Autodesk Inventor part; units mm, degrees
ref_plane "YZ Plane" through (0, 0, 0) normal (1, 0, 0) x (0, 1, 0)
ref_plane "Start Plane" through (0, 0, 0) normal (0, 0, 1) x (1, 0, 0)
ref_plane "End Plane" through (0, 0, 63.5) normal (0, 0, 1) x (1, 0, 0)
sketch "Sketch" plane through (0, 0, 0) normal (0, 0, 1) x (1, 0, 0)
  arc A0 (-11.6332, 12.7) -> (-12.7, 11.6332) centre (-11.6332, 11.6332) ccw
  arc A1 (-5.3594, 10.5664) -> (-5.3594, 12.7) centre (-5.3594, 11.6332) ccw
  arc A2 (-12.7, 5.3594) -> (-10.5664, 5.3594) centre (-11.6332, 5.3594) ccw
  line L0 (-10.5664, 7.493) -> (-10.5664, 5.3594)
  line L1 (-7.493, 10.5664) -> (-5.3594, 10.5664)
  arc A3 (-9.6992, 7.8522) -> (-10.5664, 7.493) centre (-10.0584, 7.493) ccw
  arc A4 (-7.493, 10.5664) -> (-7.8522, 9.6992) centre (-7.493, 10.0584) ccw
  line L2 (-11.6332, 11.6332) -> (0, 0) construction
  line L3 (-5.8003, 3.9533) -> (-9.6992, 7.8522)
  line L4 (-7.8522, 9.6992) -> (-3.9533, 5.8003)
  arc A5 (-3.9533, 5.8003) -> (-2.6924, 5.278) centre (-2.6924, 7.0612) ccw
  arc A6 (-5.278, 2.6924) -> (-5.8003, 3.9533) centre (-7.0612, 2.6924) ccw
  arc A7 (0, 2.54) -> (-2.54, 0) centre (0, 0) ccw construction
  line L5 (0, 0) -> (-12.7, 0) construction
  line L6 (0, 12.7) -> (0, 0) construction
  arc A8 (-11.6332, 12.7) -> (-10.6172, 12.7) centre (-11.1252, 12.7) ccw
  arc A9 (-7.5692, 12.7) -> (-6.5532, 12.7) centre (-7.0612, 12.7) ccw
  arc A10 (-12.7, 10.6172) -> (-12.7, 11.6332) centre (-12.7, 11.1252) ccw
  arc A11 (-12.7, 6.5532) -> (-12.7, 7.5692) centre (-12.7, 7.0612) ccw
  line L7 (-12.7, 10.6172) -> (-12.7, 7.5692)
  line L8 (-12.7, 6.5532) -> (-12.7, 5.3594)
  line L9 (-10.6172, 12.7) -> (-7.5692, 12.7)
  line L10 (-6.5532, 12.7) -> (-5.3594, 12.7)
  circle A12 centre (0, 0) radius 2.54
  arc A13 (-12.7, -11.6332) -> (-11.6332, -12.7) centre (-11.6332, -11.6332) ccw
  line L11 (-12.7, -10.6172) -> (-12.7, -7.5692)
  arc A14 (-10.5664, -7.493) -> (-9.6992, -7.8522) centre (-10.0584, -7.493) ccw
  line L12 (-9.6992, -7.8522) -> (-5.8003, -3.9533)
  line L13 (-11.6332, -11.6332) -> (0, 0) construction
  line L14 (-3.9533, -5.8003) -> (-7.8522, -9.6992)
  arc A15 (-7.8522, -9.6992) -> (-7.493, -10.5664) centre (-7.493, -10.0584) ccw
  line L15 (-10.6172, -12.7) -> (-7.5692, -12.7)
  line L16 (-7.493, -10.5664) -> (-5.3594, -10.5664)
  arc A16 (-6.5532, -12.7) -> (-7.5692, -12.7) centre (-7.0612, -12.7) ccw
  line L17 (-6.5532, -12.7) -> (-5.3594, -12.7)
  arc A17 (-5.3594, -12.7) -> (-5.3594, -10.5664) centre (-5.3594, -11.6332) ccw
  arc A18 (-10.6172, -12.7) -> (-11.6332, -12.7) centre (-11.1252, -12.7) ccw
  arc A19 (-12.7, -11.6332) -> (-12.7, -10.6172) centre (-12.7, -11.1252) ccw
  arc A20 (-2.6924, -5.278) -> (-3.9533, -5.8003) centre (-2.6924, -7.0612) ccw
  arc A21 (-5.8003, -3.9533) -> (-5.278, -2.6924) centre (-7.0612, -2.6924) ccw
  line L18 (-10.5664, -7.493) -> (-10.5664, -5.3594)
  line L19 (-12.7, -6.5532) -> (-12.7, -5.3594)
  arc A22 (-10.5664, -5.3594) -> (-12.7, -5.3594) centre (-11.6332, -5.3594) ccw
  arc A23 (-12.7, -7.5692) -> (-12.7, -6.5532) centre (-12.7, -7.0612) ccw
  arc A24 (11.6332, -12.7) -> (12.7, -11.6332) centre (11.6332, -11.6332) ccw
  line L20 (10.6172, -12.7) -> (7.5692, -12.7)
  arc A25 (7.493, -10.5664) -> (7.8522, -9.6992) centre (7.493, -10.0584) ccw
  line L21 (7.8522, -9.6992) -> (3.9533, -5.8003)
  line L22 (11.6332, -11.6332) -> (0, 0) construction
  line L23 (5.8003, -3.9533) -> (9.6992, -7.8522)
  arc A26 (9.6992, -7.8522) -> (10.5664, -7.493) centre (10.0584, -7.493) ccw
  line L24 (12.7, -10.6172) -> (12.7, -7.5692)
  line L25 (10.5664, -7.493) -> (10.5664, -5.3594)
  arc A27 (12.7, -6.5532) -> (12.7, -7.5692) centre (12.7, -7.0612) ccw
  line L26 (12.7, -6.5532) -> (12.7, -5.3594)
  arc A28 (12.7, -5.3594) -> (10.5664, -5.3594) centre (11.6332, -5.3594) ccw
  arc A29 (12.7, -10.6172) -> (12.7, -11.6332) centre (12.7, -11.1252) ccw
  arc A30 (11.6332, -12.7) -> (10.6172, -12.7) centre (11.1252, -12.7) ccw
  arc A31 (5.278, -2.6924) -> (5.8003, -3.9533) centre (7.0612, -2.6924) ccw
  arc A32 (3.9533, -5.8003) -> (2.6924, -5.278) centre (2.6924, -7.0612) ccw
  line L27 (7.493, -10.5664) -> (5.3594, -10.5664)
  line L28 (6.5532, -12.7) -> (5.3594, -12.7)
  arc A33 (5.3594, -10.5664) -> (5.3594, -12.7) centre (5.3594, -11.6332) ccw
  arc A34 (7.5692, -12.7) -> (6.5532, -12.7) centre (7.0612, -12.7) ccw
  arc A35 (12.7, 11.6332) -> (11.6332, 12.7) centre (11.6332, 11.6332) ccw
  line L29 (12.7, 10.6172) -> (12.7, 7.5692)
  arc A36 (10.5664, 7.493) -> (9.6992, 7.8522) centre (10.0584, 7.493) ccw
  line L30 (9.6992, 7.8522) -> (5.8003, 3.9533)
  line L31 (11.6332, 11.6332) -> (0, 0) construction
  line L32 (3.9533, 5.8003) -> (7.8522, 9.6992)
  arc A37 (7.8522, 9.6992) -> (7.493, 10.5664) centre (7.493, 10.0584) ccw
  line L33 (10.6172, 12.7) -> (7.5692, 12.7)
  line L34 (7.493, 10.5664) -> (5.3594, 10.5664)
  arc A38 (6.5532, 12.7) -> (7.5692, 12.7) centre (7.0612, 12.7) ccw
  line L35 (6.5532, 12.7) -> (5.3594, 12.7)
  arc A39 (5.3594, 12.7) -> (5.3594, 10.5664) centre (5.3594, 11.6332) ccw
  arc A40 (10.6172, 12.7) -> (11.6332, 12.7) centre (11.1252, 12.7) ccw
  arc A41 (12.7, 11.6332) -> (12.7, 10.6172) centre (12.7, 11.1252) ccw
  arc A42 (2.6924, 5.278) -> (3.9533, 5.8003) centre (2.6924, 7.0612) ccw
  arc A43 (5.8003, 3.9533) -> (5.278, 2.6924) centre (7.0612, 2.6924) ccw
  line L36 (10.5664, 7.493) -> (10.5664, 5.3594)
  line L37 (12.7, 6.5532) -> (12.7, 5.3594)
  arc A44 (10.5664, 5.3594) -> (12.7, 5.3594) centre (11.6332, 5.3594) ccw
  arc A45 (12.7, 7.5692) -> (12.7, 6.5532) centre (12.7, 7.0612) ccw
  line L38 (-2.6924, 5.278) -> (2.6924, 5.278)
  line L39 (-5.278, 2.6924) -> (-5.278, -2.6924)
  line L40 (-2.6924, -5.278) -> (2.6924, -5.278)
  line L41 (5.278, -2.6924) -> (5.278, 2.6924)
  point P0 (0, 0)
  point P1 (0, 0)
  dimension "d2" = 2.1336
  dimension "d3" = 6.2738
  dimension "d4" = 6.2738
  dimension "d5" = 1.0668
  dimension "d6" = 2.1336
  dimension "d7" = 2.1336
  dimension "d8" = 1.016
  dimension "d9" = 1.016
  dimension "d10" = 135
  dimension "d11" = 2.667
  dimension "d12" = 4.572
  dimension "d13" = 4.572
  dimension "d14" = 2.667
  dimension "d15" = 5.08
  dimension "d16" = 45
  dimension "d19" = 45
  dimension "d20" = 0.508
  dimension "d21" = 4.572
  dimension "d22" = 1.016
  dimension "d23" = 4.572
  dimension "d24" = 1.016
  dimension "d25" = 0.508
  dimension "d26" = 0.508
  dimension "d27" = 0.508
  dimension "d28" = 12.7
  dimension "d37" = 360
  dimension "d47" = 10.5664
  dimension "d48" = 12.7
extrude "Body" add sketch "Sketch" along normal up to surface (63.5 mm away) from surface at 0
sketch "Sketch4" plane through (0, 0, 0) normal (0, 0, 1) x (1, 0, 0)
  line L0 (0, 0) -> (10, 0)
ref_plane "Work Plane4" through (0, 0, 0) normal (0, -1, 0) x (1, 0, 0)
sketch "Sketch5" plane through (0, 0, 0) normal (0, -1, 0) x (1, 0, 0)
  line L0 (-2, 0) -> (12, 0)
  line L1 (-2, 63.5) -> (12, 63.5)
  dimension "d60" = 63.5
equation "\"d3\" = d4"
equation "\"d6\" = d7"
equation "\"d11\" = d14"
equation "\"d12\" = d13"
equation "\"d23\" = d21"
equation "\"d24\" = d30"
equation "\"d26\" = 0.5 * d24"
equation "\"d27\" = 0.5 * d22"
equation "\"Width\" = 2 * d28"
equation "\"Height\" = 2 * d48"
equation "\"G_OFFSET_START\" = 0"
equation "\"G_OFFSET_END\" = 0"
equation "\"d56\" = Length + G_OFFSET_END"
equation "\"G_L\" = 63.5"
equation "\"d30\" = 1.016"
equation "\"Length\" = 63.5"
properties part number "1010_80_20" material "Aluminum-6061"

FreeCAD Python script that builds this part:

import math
import FreeCAD as App
import Part
import Sketcher

V = App.Vector
Q = App.Units.Quantity

doc = App.newDocument("Part")
params = doc.addObject("Spreadsheet::Sheet", "Params")
for row, (alias, value) in enumerate([
    ("sketch1_diameter", "0.2 in"),
    ("sketch1_radius", "0.02 in"),
    ("sketch1_radius2", "0.042 in"),
    ("sketch1_width", "0.084 in"),
    ("sketch1_width2", "0.12 in"),
    ("pad1_length", "2.5 in"),
], start=1):
    params.set(f"A{row}", alias)
    params.set(f"B{row}", "=" + value)
    params.setAlias(f"B{row}", alias)

body = doc.addObject("PartDesign::Body", "Body")

sketch1 = body.newObject("Sketcher::SketchObject", "Sketch")
sketch1.AttachmentSupport = (doc.getObject("XY_Plane"), [""])
sketch1.MapMode = "FlatFace"
sketch1.addGeometry(Part.ArcOfCircle(Part.Circle(V(-11.1252, 12.7, 0), V(0, 0, 1), 0.508), math.radians(180), math.radians(360)), False)
sketch1.addGeometry(Part.ArcOfCircle(Part.Circle(V(-11.6332, 11.6332, 0), V(0, 0, 1), 1.0668), math.radians(90), math.radians(180)), False)
sketch1.addGeometry(Part.ArcOfCircle(Part.Circle(V(-12.7, 11.1252, 0), V(0, 0, 1), 0.508), math.radians(-90), math.radians(90)), False)
sketch1.addGeometry(Part.LineSegment(V(-12.7, 10.6172, 0), V(-12.7, 7.5692, 0)), False)
sketch1.addGeometry(Part.ArcOfCircle(Part.Circle(V(-12.7, 7.0612, 0), V(0, 0, 1), 0.508), math.radians(-90), math.radians(90)), False)
sketch1.addGeometry(Part.LineSegment(V(-12.7, 6.5532, 0), V(-12.7, 5.3594, 0)), False)
sketch1.addGeometry(Part.ArcOfCircle(Part.Circle(V(-11.6332, 5.3594, 0), V(0, 0, 1), 1.0668), math.radians(180), math.radians(360)), False)
sketch1.addGeometry(Part.LineSegment(V(-10.5664, 5.3594, 0), V(-10.5664, 7.493, 0)), False)
sketch1.addGeometry(Part.ArcOfCircle(Part.Circle(V(-10.0584, 7.493, 0), V(0, 0, 1), 0.507986), math.radians(45), math.radians(180)), False)
sketch1.addGeometry(Part.LineSegment(V(-9.6992, 7.8522, 0), V(-5.8003, 3.9533, 0)), False)
sketch1.addGeometry(Part.ArcOfCircle(Part.Circle(V(-7.0612, 2.6924, 0), V(0, 0, 1), 1.7832), math.radians(0), math.radians(45)), False)
sketch1.addGeometry(Part.LineSegment(V(-5.278, 2.6924, 0), V(-5.278, -2.6924, 0)), False)
sketch1.addGeometry(Part.ArcOfCircle(Part.Circle(V(-7.0612, -2.6924, 0), V(0, 0, 1), 1.783182), math.radians(-45), math.radians(0)), False)
sketch1.addGeometry(Part.LineSegment(V(-5.8003, -3.9533, 0), V(-9.6992, -7.8522, 0)), False)
sketch1.addGeometry(Part.ArcOfCircle(Part.Circle(V(-10.0584, -7.493, 0), V(0, 0, 1), 0.508), math.radians(180), math.radians(315)), False)
sketch1.addGeometry(Part.LineSegment(V(-10.5664, -7.493, 0), V(-10.5664, -5.3594, 0)), False)
sketch1.addGeometry(Part.ArcOfCircle(Part.Circle(V(-11.6332, -5.3594, 0), V(0, 0, 1), 1.0668), math.radians(0), math.radians(180)), False)
sketch1.addGeometry(Part.LineSegment(V(-12.7, -5.3594, 0), V(-12.7, -6.5532, 0)), False)
sketch1.addGeometry(Part.ArcOfCircle(Part.Circle(V(-12.7, -7.0612, 0), V(0, 0, 1), 0.508), math.radians(-90), math.radians(90)), False)
sketch1.addGeometry(Part.LineSegment(V(-12.7, -7.5692, 0), V(-12.7, -10.6172, 0)), False)
sketch1.addGeometry(Part.ArcOfCircle(Part.Circle(V(-12.7, -11.1252, 0), V(0, 0, 1), 0.508), math.radians(-90), math.radians(90)), False)
sketch1.addGeometry(Part.ArcOfCircle(Part.Circle(V(-11.6332, -11.6332, 0), V(0, 0, 1), 1.0668), math.radians(180), math.radians(270)), False)
sketch1.addGeometry(Part.ArcOfCircle(Part.Circle(V(-11.1252, -12.7, 0), V(0, 0, 1), 0.508), math.radians(0), math.radians(180)), False)
sketch1.addGeometry(Part.LineSegment(V(-10.6172, -12.7, 0), V(-7.5692, -12.7, 0)), False)
sketch1.addGeometry(Part.ArcOfCircle(Part.Circle(V(-7.0612, -12.7, 0), V(0, 0, 1), 0.508), math.radians(0), math.radians(180)), False)
sketch1.addGeometry(Part.LineSegment(V(-6.5532, -12.7, 0), V(-5.3594, -12.7, 0)), False)
sketch1.addGeometry(Part.ArcOfCircle(Part.Circle(V(-5.3594, -11.6332, 0), V(0, 0, 1), 1.0668), math.radians(-90), math.radians(90)), False)
sketch1.addGeometry(Part.LineSegment(V(-5.3594, -10.5664, 0), V(-7.493, -10.5664, 0)), False)
sketch1.addGeometry(Part.ArcOfCircle(Part.Circle(V(-7.493, -10.0584, 0), V(0, 0, 1), 0.507986), math.radians(135), math.radians(270)), False)
sketch1.addGeometry(Part.LineSegment(V(-7.8522, -9.6992, 0), V(-3.9533, -5.8003, 0)), False)
sketch1.addGeometry(Part.ArcOfCircle(Part.Circle(V(-2.6924, -7.0612, 0), V(0, 0, 1), 1.7832), math.radians(90), math.radians(135)), False)
sketch1.addGeometry(Part.LineSegment(V(-2.6924, -5.278, 0), V(2.6924, -5.278, 0)), False)
sketch1.addGeometry(Part.ArcOfCircle(Part.Circle(V(2.6924, -7.0612, 0), V(0, 0, 1), 1.783182), math.radians(45), math.radians(90)), False)
sketch1.addGeometry(Part.LineSegment(V(3.9533, -5.8003, 0), V(7.8522, -9.6992, 0)), False)
sketch1.addGeometry(Part.ArcOfCircle(Part.Circle(V(7.493, -10.0584, 0), V(0, 0, 1), 0.508), math.radians(-90), math.radians(45)), False)
sketch1.addGeometry(Part.LineSegment(V(7.493, -10.5664, 0), V(5.3594, -10.5664, 0)), False)
sketch1.addGeometry(Part.ArcOfCircle(Part.Circle(V(5.3594, -11.6332, 0), V(0, 0, 1), 1.0668), math.radians(90), math.radians(270)), False)
sketch1.addGeometry(Part.LineSegment(V(5.3594, -12.7, 0), V(6.5532, -12.7, 0)), False)
sketch1.addGeometry(Part.ArcOfCircle(Part.Circle(V(7.0612, -12.7, 0), V(0, 0, 1), 0.508), math.radians(0), math.radians(180)), False)
sketch1.addGeometry(Part.LineSegment(V(7.5692, -12.7, 0), V(10.6172, -12.7, 0)), False)
sketch1.addGeometry(Part.ArcOfCircle(Part.Circle(V(11.1252, -12.7, 0), V(0, 0, 1), 0.508), math.radians(0), math.radians(180)), False)
sketch1.addGeometry(Part.ArcOfCircle(Part.Circle(V(11.6332, -11.6332, 0), V(0, 0, 1), 1.0668), math.radians(-90), math.radians(0)), False)
sketch1.addGeometry(Part.ArcOfCircle(Part.Circle(V(12.7, -11.1252, 0), V(0, 0, 1), 0.508), math.radians(90), math.radians(270)), False)
sketch1.addGeometry(Part.LineSegment(V(12.7, -10.6172, 0), V(12.7, -7.5692, 0)), False)
sketch1.addGeometry(Part.ArcOfCircle(Part.Circle(V(12.7, -7.0612, 0), V(0, 0, 1), 0.508), math.radians(90), math.radians(270)), False)
sketch1.addGeometry(Part.LineSegment(V(12.7, -6.5532, 0), V(12.7, -5.3594, 0)), False)
sketch1.addGeometry(Part.ArcOfCircle(Part.Circle(V(11.6332, -5.3594, 0), V(0, 0, 1), 1.0668), math.radians(0), math.radians(180)), False)
sketch1.addGeometry(Part.LineSegment(V(10.5664, -5.3594, 0), V(10.5664, -7.493, 0)), False)
sketch1.addGeometry(Part.ArcOfCircle(Part.Circle(V(10.0584, -7.493, 0), V(0, 0, 1), 0.507986), math.radians(-135), math.radians(0)), False)
sketch1.addGeometry(Part.LineSegment(V(9.6992, -7.8522, 0), V(5.8003, -3.9533, 0)), False)
sketch1.addGeometry(Part.ArcOfCircle(Part.Circle(V(7.0612, -2.6924, 0), V(0, 0, 1), 1.7832), math.radians(180), math.radians(225)), False)
sketch1.addGeometry(Part.LineSegment(V(5.278, -2.6924, 0), V(5.278, 2.6924, 0)), False)
sketch1.addGeometry(Part.ArcOfCircle(Part.Circle(V(7.0612, 2.6924, 0), V(0, 0, 1), 1.783182), math.radians(135), math.radians(180)), False)
sketch1.addGeometry(Part.LineSegment(V(5.8003, 3.9533, 0), V(9.6992, 7.8522, 0)), False)
sketch1.addGeometry(Part.ArcOfCircle(Part.Circle(V(10.0584, 7.493, 0), V(0, 0, 1), 0.508), math.radians(0), math.radians(135)), False)
sketch1.addGeometry(Part.LineSegment(V(10.5664, 7.493, 0), V(10.5664, 5.3594, 0)), False)
sketch1.addGeometry(Part.ArcOfCircle(Part.Circle(V(11.6332, 5.3594, 0), V(0, 0, 1), 1.0668), math.radians(180), math.radians(360)), False)
sketch1.addGeometry(Part.LineSegment(V(12.7, 5.3594, 0), V(12.7, 6.5532, 0)), False)
sketch1.addGeometry(Part.ArcOfCircle(Part.Circle(V(12.7, 7.0612, 0), V(0, 0, 1), 0.508), math.radians(90), math.radians(270)), False)
sketch1.addGeometry(Part.LineSegment(V(12.7, 7.5692, 0), V(12.7, 10.6172, 0)), False)
sketch1.addGeometry(Part.ArcOfCircle(Part.Circle(V(12.7, 11.1252, 0), V(0, 0, 1), 0.508), math.radians(90), math.radians(270)), False)
sketch1.addGeometry(Part.ArcOfCircle(Part.Circle(V(11.6332, 11.6332, 0), V(0, 0, 1), 1.0668), math.radians(0), math.radians(90)), False)
sketch1.addGeometry(Part.ArcOfCircle(Part.Circle(V(11.1252, 12.7, 0), V(0, 0, 1), 0.508), math.radians(180), math.radians(360)), False)
sketch1.addGeometry(Part.LineSegment(V(10.6172, 12.7, 0), V(7.5692, 12.7, 0)), False)
sketch1.addGeometry(Part.ArcOfCircle(Part.Circle(V(7.0612, 12.7, 0), V(0, 0, 1), 0.508), math.radians(180), math.radians(360)), False)
sketch1.addGeometry(Part.LineSegment(V(6.5532, 12.7, 0), V(5.3594, 12.7, 0)), False)
sketch1.addGeometry(Part.ArcOfCircle(Part.Circle(V(5.3594, 11.6332, 0), V(0, 0, 1), 1.0668), math.radians(90), math.radians(270)), False)
sketch1.addGeometry(Part.LineSegment(V(5.3594, 10.5664, 0), V(7.493, 10.5664, 0)), False)
sketch1.addGeometry(Part.ArcOfCircle(Part.Circle(V(7.493, 10.0584, 0), V(0, 0, 1), 0.507986), math.radians(-45), math.radians(90)), False)
sketch1.addGeometry(Part.LineSegment(V(7.8522, 9.6992, 0), V(3.9533, 5.8003, 0)), False)
sketch1.addGeometry(Part.ArcOfCircle(Part.Circle(V(2.6924, 7.0612, 0), V(0, 0, 1), 1.7832), math.radians(-90), math.radians(-45)), False)
sketch1.addGeometry(Part.LineSegment(V(2.6924, 5.278, 0), V(-2.6924, 5.278, 0)), False)
sketch1.addGeometry(Part.ArcOfCircle(Part.Circle(V(-2.6924, 7.0612, 0), V(0, 0, 1), 1.783182), math.radians(-135), math.radians(-90)), False)
sketch1.addGeometry(Part.LineSegment(V(-3.9533, 5.8003, 0), V(-7.8522, 9.6992, 0)), False)
sketch1.addGeometry(Part.ArcOfCircle(Part.Circle(V(-7.493, 10.0584, 0), V(0, 0, 1), 0.508), math.radians(90), math.radians(225)), False)
sketch1.addGeometry(Part.LineSegment(V(-7.493, 10.5664, 0), V(-5.3594, 10.5664, 0)), False)
sketch1.addGeometry(Part.ArcOfCircle(Part.Circle(V(-5.3594, 11.6332, 0), V(0, 0, 1), 1.0668), math.radians(-90), math.radians(90)), False)
sketch1.addGeometry(Part.LineSegment(V(-5.3594, 12.7, 0), V(-6.5532, 12.7, 0)), False)
sketch1.addGeometry(Part.ArcOfCircle(Part.Circle(V(-7.0612, 12.7, 0), V(0, 0, 1), 0.508), math.radians(180), math.radians(360)), False)
sketch1.addGeometry(Part.LineSegment(V(-7.5692, 12.7, 0), V(-10.6172, 12.7, 0)), False)
sketch1.addGeometry(Part.Circle(V(0, 0, 0), V(0, 0, 1), 2.54), False)
sketch1.addConstraint(Sketcher.Constraint("Coincident", 0, 1, 1, 1))
sketch1.addConstraint(Sketcher.Constraint("Coincident", 1, 2, 2, 2))
sketch1.addConstraint(Sketcher.Constraint("Coincident", 2, 1, 3, 1))
sketch1.addConstraint(Sketcher.Constraint("Coincident", 3, 2, 4, 2))
sketch1.addConstraint(Sketcher.Constraint("Coincident", 4, 1, 5, 1))
sketch1.addConstraint(Sketcher.Constraint("Tangent", 5, 2, 6, 1))
sketch1.addConstraint(Sketcher.Constraint("Tangent", 6, 2, 7, 1))
sketch1.addConstraint(Sketcher.Constraint("Tangent", 7, 2, 8, 2))
sketch1.addConstraint(Sketcher.Constraint("Tangent", 8, 1, 9, 1))
sketch1.addConstraint(Sketcher.Constraint("Tangent", 9, 2, 10, 2))
sketch1.addConstraint(Sketcher.Constraint("Tangent", 10, 1, 11, 1))
sketch1.addConstraint(Sketcher.Constraint("Tangent", 11, 2, 12, 2))
sketch1.addConstraint(Sketcher.Constraint("Tangent", 12, 1, 13, 1))
sketch1.addConstraint(Sketcher.Constraint("Tangent", 13, 2, 14, 2))
sketch1.addConstraint(Sketcher.Constraint("Tangent", 14, 1, 15, 1))
sketch1.addConstraint(Sketcher.Constraint("Tangent", 15, 2, 16, 1))
sketch1.addConstraint(Sketcher.Constraint("Tangent", 16, 2, 17, 1))
sketch1.addConstraint(Sketcher.Constraint("Coincident", 17, 2, 18, 2))
sketch1.addConstraint(Sketcher.Constraint("Coincident", 18, 1, 19, 1))
sketch1.addConstraint(Sketcher.Constraint("Coincident", 19, 2, 20, 2))
sketch1.addConstraint(Sketcher.Constraint("Coincident", 20, 1, 21, 1))
sketch1.addConstraint(Sketcher.Constraint("Coincident", 21, 2, 22, 2))
sketch1.addConstraint(Sketcher.Constraint("Coincident", 22, 1, 23, 1))
sketch1.addConstraint(Sketcher.Constraint("Coincident", 23, 2, 24, 2))
sketch1.addConstraint(Sketcher.Constraint("Coincident", 24, 1, 25, 1))
sketch1.addConstraint(Sketcher.Constraint("Tangent", 25, 2, 26, 1))
sketch1.addConstraint(Sketcher.Constraint("Tangent", 26, 2, 27, 1))
sketch1.addConstraint(Sketcher.Constraint("Tangent", 27, 2, 28, 2))
sketch1.addConstraint(Sketcher.Constraint("Tangent", 28, 1, 29, 1))
sketch1.addConstraint(Sketcher.Constraint("Tangent", 29, 2, 30, 2))
sketch1.addConstraint(Sketcher.Constraint("Tangent", 30, 1, 31, 1))
sketch1.addConstraint(Sketcher.Constraint("Tangent", 31, 2, 32, 2))
sketch1.addConstraint(Sketcher.Constraint("Tangent", 32, 1, 33, 1))
sketch1.addConstraint(Sketcher.Constraint("Tangent", 33, 2, 34, 2))
sketch1.addConstraint(Sketcher.Constraint("Tangent", 34, 1, 35, 1))
sketch1.addConstraint(Sketcher.Constraint("Tangent", 35, 2, 36, 1))
sketch1.addConstraint(Sketcher.Constraint("Tangent", 36, 2, 37, 1))
sketch1.addConstraint(Sketcher.Constraint("Coincident", 37, 2, 38, 2))
sketch1.addConstraint(Sketcher.Constraint("Coincident", 38, 1, 39, 1))
sketch1.addConstraint(Sketcher.Constraint("Coincident", 39, 2, 40, 2))
sketch1.addConstraint(Sketcher.Constraint("Coincident", 40, 1, 41, 1))
sketch1.addConstraint(Sketcher.Constraint("Coincident", 41, 2, 42, 2))
sketch1.addConstraint(Sketcher.Constraint("Coincident", 42, 1, 43, 1))
sketch1.addConstraint(Sketcher.Constraint("Coincident", 43, 2, 44, 2))
sketch1.addConstraint(Sketcher.Constraint("Coincident", 44, 1, 45, 1))
sketch1.addConstraint(Sketcher.Constraint("Tangent", 45, 2, 46, 1))
sketch1.addConstraint(Sketcher.Constraint("Tangent", 46, 2, 47, 1))
sketch1.addConstraint(Sketcher.Constraint("Tangent", 47, 2, 48, 2))
sketch1.addConstraint(Sketcher.Constraint("Tangent", 48, 1, 49, 1))
sketch1.addConstraint(Sketcher.Constraint("Tangent", 49, 2, 50, 2))
sketch1.addConstraint(Sketcher.Constraint("Tangent", 50, 1, 51, 1))
sketch1.addConstraint(Sketcher.Constraint("Tangent", 51, 2, 52, 2))
sketch1.addConstraint(Sketcher.Constraint("Tangent", 52, 1, 53, 1))
sketch1.addConstraint(Sketcher.Constraint("Tangent", 53, 2, 54, 2))
sketch1.addConstraint(Sketcher.Constraint("Tangent", 54, 1, 55, 1))
sketch1.addConstraint(Sketcher.Constraint("Tangent", 55, 2, 56, 1))
sketch1.addConstraint(Sketcher.Constraint("Tangent", 56, 2, 57, 1))
sketch1.addConstraint(Sketcher.Constraint("Coincident", 57, 2, 58, 2))
sketch1.addConstraint(Sketcher.Constraint("Coincident", 58, 1, 59, 1))
sketch1.addConstraint(Sketcher.Constraint("Coincident", 59, 2, 60, 2))
sketch1.addConstraint(Sketcher.Constraint("Coincident", 60, 1, 61, 1))
sketch1.addConstraint(Sketcher.Constraint("Coincident", 61, 2, 62, 2))
sketch1.addConstraint(Sketcher.Constraint("Coincident", 62, 1, 63, 1))
sketch1.addConstraint(Sketcher.Constraint("Coincident", 63, 2, 64, 2))
sketch1.addConstraint(Sketcher.Constraint("Coincident", 64, 1, 65, 1))
sketch1.addConstraint(Sketcher.Constraint("Tangent", 65, 2, 66, 1))
sketch1.addConstraint(Sketcher.Constraint("Tangent", 66, 2, 67, 1))
sketch1.addConstraint(Sketcher.Constraint("Tangent", 67, 2, 68, 2))
sketch1.addConstraint(Sketcher.Constraint("Tangent", 68, 1, 69, 1))
sketch1.addConstraint(Sketcher.Constraint("Tangent", 69, 2, 70, 2))
sketch1.addConstraint(Sketcher.Constraint("Tangent", 70, 1, 71, 1))
sketch1.addConstraint(Sketcher.Constraint("Tangent", 71, 2, 72, 2))
sketch1.addConstraint(Sketcher.Constraint("Tangent", 72, 1, 73, 1))
sketch1.addConstraint(Sketcher.Constraint("Tangent", 73, 2, 74, 2))
sketch1.addConstraint(Sketcher.Constraint("Tangent", 74, 1, 75, 1))
sketch1.addConstraint(Sketcher.Constraint("Tangent", 75, 2, 76, 1))
sketch1.addConstraint(Sketcher.Constraint("Tangent", 76, 2, 77, 1))
sketch1.addConstraint(Sketcher.Constraint("Coincident", 77, 2, 78, 2))
sketch1.addConstraint(Sketcher.Constraint("Coincident", 78, 1, 79, 1))
sketch1.addConstraint(Sketcher.Constraint("Coincident", 79, 2, 0, 2))
sketch1.addConstraint(Sketcher.Constraint("Vertical", 3))
sketch1.addConstraint(Sketcher.Constraint("Vertical", 5))
sketch1.addConstraint(Sketcher.Constraint("Vertical", 7))
sketch1.addConstraint(Sketcher.Constraint("Vertical", 11))
sketch1.addConstraint(Sketcher.Constraint("Vertical", 15))
sketch1.addConstraint(Sketcher.Constraint("Vertical", 17))
sketch1.addConstraint(Sketcher.Constraint("Vertical", 19))
sketch1.addConstraint(Sketcher.Constraint("Horizontal", 23))
sketch1.addConstraint(Sketcher.Constraint("Horizontal", 25))
sketch1.addConstraint(Sketcher.Constraint("Horizontal", 27))
sketch1.addConstraint(Sketcher.Constraint("Horizontal", 31))
sketch1.addConstraint(Sketcher.Constraint("Horizontal", 35))
sketch1.addConstraint(Sketcher.Constraint("Horizontal", 37))
sketch1.addConstraint(Sketcher.Constraint("Horizontal", 39))
sketch1.addConstraint(Sketcher.Constraint("Vertical", 43))
sketch1.addConstraint(Sketcher.Constraint("Vertical", 45))
sketch1.addConstraint(Sketcher.Constraint("Vertical", 47))
sketch1.addConstraint(Sketcher.Constraint("Vertical", 51))
sketch1.addConstraint(Sketcher.Constraint("Vertical", 55))
sketch1.addConstraint(Sketcher.Constraint("Vertical", 57))
sketch1.addConstraint(Sketcher.Constraint("Vertical", 59))
sketch1.addConstraint(Sketcher.Constraint("Horizontal", 63))
sketch1.addConstraint(Sketcher.Constraint("Horizontal", 65))
sketch1.addConstraint(Sketcher.Constraint("Horizontal", 67))
sketch1.addConstraint(Sketcher.Constraint("Horizontal", 71))
sketch1.addConstraint(Sketcher.Constraint("Horizontal", 75))
sketch1.addConstraint(Sketcher.Constraint("Horizontal", 77))
sketch1.addConstraint(Sketcher.Constraint("Horizontal", 79))
sketch1.addConstraint(Sketcher.Constraint("Coincident", 80, 3, -1, 1))
sketch1.addConstraint(Sketcher.Constraint("Equal", 0, 2))
sketch1.addConstraint(Sketcher.Constraint("Equal", 2, 4))
sketch1.addConstraint(Sketcher.Constraint("Equal", 1, 6))
sketch1.addConstraint(Sketcher.Constraint("Equal", 4, 8))
sketch1.addConstraint(Sketcher.Constraint("Equal", 10, 12))
sketch1.addConstraint(Sketcher.Constraint("Equal", 8, 14))
sketch1.addConstraint(Sketcher.Constraint("Equal", 6, 16))
sketch1.addConstraint(Sketcher.Constraint("Equal", 14, 18))
sketch1.addConstraint(Sketcher.Constraint("Equal", 18, 20))
sketch1.addConstraint(Sketcher.Constraint("Equal", 16, 21))
sketch1.addConstraint(Sketcher.Constraint("Equal", 20, 22))
sketch1.addConstraint(Sketcher.Constraint("Equal", 22, 24))
sketch1.addConstraint(Sketcher.Constraint("Equal", 21, 26))
sketch1.addConstraint(Sketcher.Constraint("Equal", 24, 28))
sketch1.addConstraint(Sketcher.Constraint("Equal", 12, 30))
sketch1.addConstraint(Sketcher.Constraint("Equal", 30, 32))
sketch1.addConstraint(Sketcher.Constraint("Equal", 28, 34))
sketch1.addConstraint(Sketcher.Constraint("Equal", 26, 36))
sketch1.addConstraint(Sketcher.Constraint("Equal", 34, 38))
sketch1.addConstraint(Sketcher.Constraint("Equal", 38, 40))
sketch1.addConstraint(Sketcher.Constraint("Equal", 36, 41))
sketch1.addConstraint(Sketcher.Constraint("Equal", 40, 42))
sketch1.addConstraint(Sketcher.Constraint("Equal", 42, 44))
sketch1.addConstraint(Sketcher.Constraint("Equal", 41, 46))
sketch1.addConstraint(Sketcher.Constraint("Equal", 44, 48))
sketch1.addConstraint(Sketcher.Constraint("Equal", 32, 50))
sketch1.addConstraint(Sketcher.Constraint("Equal", 50, 52))
sketch1.addConstraint(Sketcher.Constraint("Equal", 48, 54))
sketch1.addConstraint(Sketcher.Constraint("Equal", 46, 56))
sketch1.addConstraint(Sketcher.Constraint("Equal", 54, 58))
sketch1.addConstraint(Sketcher.Constraint("Equal", 58, 60))
sketch1.addConstraint(Sketcher.Constraint("Equal", 56, 61))
sketch1.addConstraint(Sketcher.Constraint("Equal", 60, 62))
sketch1.addConstraint(Sketcher.Constraint("Equal", 62, 64))
sketch1.addConstraint(Sketcher.Constraint("Equal", 61, 66))
sketch1.addConstraint(Sketcher.Constraint("Equal", 64, 68))
sketch1.addConstraint(Sketcher.Constraint("Equal", 52, 70))
sketch1.addConstraint(Sketcher.Constraint("Equal", 70, 72))
sketch1.addConstraint(Sketcher.Constraint("Equal", 68, 74))
sketch1.addConstraint(Sketcher.Constraint("Equal", 66, 76))
sketch1.addConstraint(Sketcher.Constraint("Equal", 74, 78))
sketch1.addConstraint(Sketcher.Constraint("Symmetric", 0, 3, 40, 3, -1, 1))
sketch1.addConstraint(Sketcher.Constraint("Symmetric", 1, 3, 41, 3, -1, 1))
sketch1.addConstraint(Sketcher.Constraint("Symmetric", 2, 3, 42, 3, -1, 1))
sketch1.addConstraint(Sketcher.Constraint("Symmetric", 4, 3, 44, 3, -1, 1))
sketch1.addConstraint(Sketcher.Constraint("Symmetric", 6, 3, 46, 3, -1, 1))
sketch1.addConstraint(Sketcher.Constraint("Symmetric", 10, 3, 50, 3, -1, 1))
sketch1.addConstraint(Sketcher.Constraint("Symmetric", 14, 3, 54, 3, -1, 1))
sketch1.addConstraint(Sketcher.Constraint("Symmetric", 18, 3, 58, 3, -1, 1))
sketch1.addConstraint(Sketcher.Constraint("Symmetric", 20, 3, 60, 3, -1, 1))
sketch1.addConstraint(Sketcher.Constraint("Symmetric", 21, 3, 61, 3, -1, 1))
sketch1.addConstraint(Sketcher.Constraint("Symmetric", 22, 3, 62, 3, -1, 1))
sketch1.addConstraint(Sketcher.Constraint("Symmetric", 24, 3, 64, 3, -1, 1))
sketch1.addConstraint(Sketcher.Constraint("Symmetric", 26, 3, 66, 3, -1, 1))
sketch1.addConstraint(Sketcher.Constraint("Symmetric", 30, 3, 70, 3, -1, 1))
sketch1.addConstraint(Sketcher.Constraint("Symmetric", 34, 3, 74, 3, -1, 1))
sketch1.addConstraint(Sketcher.Constraint("Symmetric", 38, 3, 78, 3, -1, 1))
sketch1.addConstraint(Sketcher.Constraint("Symmetric", 28, 3, 34, 3, -2))
sketch1.addConstraint(Sketcher.Constraint("Symmetric", 24, 3, 38, 3, -2))
sketch1.addConstraint(Sketcher.Constraint("Symmetric", 22, 3, 40, 3, -2))
sketch1.addConstraint(Sketcher.Constraint("Symmetric", 21, 3, 41, 3, -2))
sketch1.addConstraint(Sketcher.Constraint("Symmetric", 20, 3, 42, 3, -2))
sketch1.addConstraint(Sketcher.Constraint("Symmetric", 18, 3, 44, 3, -2))
sketch1.addConstraint(Sketcher.Constraint("Symmetric", 16, 3, 46, 3, -2))
sketch1.addConstraint(Sketcher.Constraint("Symmetric", 13, 2, 48, 1, -2))
sketch1.addConstraint(Sketcher.Constraint("Symmetric", 9, 2, 52, 1, -2))
sketch1.addConstraint(Sketcher.Constraint("Symmetric", 69, 2, 72, 1, -2))
sketch1.addConstraint(Sketcher.Constraint("Perpendicular", 9, 13))
sketch1.addConstraint(Sketcher.Constraint("Parallel", 13, 29))
sketch1.addConstraint(Sketcher.Constraint("Perpendicular", 29, 33))
sketch1.addConstraint(Sketcher.Constraint("Horizontal", 22, 3, 24, 3))
sketch1.addConstraint(Sketcher.Constraint("Horizontal", 21, 3, 26, 3))
sketch1.addConstraint(Sketcher.Constraint("Horizontal", 18, 3, 30, 3))
sketch1.addConstraint(Sketcher.Constraint("Horizontal", 6, 3, 56, 3))
sketch1.addConstraint(Sketcher.Constraint("Horizontal", 78, 3, 0, 1))
sketch1.addConstraint(Sketcher.Constraint("Horizontal", 76, 3, 1, 2))
sketch1.addConstraint(Sketcher.Constraint("Horizontal", 21, 2, 22, 1))
sketch1.addConstraint(Sketcher.Constraint("Horizontal", 37, 2, 38, 1))
sketch1.addConstraint(Sketcher.Constraint("Horizontal", 61, 2, 62, 1))
sketch1.addConstraint(Sketcher.Constraint("Horizontal", 77, 2, 78, 1))
sketch1.addConstraint(Sketcher.Constraint("Vertical", 2, 3, 4, 3))
sketch1.addConstraint(Sketcher.Constraint("Vertical", 1, 3, 6, 3))
sketch1.addConstraint(Sketcher.Constraint("Vertical", 12, 3, 24, 3))
sketch1.addConstraint(Sketcher.Constraint("Vertical", 36, 3, 66, 3))
sketch1.addConstraint(Sketcher.Constraint("Vertical", 26, 3, 76, 3))
sketch1.addConstraint(Sketcher.Constraint("Vertical", 21, 3, 0, 1))
sketch1.addConstraint(Sketcher.Constraint("Vertical", 20, 3, 1, 2))
sketch1.addConstraint(Sketcher.Constraint("Vertical", 1, 2, 2, 1))
sketch1.addConstraint(Sketcher.Constraint("Vertical", 17, 2, 18, 1))
sketch1.addConstraint(Sketcher.Constraint("Vertical", 41, 2, 42, 1))
sketch1.addConstraint(Sketcher.Constraint("Vertical", 57, 2, 58, 1))
sketch1.addConstraint(Sketcher.Constraint("Equal", 79, 3))
sketch1.addConstraint(Sketcher.Constraint("Equal", 77, 5))
sketch1.addConstraint(Sketcher.Constraint("Equal", 75, 7))
sketch1.addConstraint(Sketcher.Constraint("Equal", 71, 11))
sketch1.addConstraint(Sketcher.Constraint("Diameter", 80, Q("0.2 in")))
sketch1.addConstraint(Sketcher.Constraint("Radius", 0, Q("0.02 in")))
sketch1.addConstraint(Sketcher.Constraint("Radius", 1, Q("0.042 in")))
sketch1.addConstraint(Sketcher.Constraint("DistanceY", -1, 1, 0, 3, Q("0.5 in")))
sketch1.addConstraint(Sketcher.Constraint("DistanceX", 27, 2, 27, 1, Q("0.084 in")))
sketch1.addConstraint(Sketcher.Constraint("DistanceX", 23, 1, 23, 2, Q("0.12 in")))
sketch1.addConstraint(Sketcher.Constraint("Radius", 10, Q("0.0702 in")))
sketch1.addConstraint(Sketcher.Constraint("DistanceX", 25, 1, 25, 2, Q("0.047 in")))
sketch1.setExpression("Constraints[204]", "Params.sketch1_diameter")
sketch1.setExpression("Constraints[205]", "Params.sketch1_radius")
sketch1.setExpression("Constraints[206]", "Params.sketch1_radius2")
sketch1.setExpression("Constraints[208]", "Params.sketch1_width")
sketch1.setExpression("Constraints[209]", "Params.sketch1_width2")
pad1 = body.newObject("PartDesign::Pad", "Pad")
pad1.Profile = sketch1
pad1.setExpression("Length", "Params.pad1_length")

doc.recompute()
